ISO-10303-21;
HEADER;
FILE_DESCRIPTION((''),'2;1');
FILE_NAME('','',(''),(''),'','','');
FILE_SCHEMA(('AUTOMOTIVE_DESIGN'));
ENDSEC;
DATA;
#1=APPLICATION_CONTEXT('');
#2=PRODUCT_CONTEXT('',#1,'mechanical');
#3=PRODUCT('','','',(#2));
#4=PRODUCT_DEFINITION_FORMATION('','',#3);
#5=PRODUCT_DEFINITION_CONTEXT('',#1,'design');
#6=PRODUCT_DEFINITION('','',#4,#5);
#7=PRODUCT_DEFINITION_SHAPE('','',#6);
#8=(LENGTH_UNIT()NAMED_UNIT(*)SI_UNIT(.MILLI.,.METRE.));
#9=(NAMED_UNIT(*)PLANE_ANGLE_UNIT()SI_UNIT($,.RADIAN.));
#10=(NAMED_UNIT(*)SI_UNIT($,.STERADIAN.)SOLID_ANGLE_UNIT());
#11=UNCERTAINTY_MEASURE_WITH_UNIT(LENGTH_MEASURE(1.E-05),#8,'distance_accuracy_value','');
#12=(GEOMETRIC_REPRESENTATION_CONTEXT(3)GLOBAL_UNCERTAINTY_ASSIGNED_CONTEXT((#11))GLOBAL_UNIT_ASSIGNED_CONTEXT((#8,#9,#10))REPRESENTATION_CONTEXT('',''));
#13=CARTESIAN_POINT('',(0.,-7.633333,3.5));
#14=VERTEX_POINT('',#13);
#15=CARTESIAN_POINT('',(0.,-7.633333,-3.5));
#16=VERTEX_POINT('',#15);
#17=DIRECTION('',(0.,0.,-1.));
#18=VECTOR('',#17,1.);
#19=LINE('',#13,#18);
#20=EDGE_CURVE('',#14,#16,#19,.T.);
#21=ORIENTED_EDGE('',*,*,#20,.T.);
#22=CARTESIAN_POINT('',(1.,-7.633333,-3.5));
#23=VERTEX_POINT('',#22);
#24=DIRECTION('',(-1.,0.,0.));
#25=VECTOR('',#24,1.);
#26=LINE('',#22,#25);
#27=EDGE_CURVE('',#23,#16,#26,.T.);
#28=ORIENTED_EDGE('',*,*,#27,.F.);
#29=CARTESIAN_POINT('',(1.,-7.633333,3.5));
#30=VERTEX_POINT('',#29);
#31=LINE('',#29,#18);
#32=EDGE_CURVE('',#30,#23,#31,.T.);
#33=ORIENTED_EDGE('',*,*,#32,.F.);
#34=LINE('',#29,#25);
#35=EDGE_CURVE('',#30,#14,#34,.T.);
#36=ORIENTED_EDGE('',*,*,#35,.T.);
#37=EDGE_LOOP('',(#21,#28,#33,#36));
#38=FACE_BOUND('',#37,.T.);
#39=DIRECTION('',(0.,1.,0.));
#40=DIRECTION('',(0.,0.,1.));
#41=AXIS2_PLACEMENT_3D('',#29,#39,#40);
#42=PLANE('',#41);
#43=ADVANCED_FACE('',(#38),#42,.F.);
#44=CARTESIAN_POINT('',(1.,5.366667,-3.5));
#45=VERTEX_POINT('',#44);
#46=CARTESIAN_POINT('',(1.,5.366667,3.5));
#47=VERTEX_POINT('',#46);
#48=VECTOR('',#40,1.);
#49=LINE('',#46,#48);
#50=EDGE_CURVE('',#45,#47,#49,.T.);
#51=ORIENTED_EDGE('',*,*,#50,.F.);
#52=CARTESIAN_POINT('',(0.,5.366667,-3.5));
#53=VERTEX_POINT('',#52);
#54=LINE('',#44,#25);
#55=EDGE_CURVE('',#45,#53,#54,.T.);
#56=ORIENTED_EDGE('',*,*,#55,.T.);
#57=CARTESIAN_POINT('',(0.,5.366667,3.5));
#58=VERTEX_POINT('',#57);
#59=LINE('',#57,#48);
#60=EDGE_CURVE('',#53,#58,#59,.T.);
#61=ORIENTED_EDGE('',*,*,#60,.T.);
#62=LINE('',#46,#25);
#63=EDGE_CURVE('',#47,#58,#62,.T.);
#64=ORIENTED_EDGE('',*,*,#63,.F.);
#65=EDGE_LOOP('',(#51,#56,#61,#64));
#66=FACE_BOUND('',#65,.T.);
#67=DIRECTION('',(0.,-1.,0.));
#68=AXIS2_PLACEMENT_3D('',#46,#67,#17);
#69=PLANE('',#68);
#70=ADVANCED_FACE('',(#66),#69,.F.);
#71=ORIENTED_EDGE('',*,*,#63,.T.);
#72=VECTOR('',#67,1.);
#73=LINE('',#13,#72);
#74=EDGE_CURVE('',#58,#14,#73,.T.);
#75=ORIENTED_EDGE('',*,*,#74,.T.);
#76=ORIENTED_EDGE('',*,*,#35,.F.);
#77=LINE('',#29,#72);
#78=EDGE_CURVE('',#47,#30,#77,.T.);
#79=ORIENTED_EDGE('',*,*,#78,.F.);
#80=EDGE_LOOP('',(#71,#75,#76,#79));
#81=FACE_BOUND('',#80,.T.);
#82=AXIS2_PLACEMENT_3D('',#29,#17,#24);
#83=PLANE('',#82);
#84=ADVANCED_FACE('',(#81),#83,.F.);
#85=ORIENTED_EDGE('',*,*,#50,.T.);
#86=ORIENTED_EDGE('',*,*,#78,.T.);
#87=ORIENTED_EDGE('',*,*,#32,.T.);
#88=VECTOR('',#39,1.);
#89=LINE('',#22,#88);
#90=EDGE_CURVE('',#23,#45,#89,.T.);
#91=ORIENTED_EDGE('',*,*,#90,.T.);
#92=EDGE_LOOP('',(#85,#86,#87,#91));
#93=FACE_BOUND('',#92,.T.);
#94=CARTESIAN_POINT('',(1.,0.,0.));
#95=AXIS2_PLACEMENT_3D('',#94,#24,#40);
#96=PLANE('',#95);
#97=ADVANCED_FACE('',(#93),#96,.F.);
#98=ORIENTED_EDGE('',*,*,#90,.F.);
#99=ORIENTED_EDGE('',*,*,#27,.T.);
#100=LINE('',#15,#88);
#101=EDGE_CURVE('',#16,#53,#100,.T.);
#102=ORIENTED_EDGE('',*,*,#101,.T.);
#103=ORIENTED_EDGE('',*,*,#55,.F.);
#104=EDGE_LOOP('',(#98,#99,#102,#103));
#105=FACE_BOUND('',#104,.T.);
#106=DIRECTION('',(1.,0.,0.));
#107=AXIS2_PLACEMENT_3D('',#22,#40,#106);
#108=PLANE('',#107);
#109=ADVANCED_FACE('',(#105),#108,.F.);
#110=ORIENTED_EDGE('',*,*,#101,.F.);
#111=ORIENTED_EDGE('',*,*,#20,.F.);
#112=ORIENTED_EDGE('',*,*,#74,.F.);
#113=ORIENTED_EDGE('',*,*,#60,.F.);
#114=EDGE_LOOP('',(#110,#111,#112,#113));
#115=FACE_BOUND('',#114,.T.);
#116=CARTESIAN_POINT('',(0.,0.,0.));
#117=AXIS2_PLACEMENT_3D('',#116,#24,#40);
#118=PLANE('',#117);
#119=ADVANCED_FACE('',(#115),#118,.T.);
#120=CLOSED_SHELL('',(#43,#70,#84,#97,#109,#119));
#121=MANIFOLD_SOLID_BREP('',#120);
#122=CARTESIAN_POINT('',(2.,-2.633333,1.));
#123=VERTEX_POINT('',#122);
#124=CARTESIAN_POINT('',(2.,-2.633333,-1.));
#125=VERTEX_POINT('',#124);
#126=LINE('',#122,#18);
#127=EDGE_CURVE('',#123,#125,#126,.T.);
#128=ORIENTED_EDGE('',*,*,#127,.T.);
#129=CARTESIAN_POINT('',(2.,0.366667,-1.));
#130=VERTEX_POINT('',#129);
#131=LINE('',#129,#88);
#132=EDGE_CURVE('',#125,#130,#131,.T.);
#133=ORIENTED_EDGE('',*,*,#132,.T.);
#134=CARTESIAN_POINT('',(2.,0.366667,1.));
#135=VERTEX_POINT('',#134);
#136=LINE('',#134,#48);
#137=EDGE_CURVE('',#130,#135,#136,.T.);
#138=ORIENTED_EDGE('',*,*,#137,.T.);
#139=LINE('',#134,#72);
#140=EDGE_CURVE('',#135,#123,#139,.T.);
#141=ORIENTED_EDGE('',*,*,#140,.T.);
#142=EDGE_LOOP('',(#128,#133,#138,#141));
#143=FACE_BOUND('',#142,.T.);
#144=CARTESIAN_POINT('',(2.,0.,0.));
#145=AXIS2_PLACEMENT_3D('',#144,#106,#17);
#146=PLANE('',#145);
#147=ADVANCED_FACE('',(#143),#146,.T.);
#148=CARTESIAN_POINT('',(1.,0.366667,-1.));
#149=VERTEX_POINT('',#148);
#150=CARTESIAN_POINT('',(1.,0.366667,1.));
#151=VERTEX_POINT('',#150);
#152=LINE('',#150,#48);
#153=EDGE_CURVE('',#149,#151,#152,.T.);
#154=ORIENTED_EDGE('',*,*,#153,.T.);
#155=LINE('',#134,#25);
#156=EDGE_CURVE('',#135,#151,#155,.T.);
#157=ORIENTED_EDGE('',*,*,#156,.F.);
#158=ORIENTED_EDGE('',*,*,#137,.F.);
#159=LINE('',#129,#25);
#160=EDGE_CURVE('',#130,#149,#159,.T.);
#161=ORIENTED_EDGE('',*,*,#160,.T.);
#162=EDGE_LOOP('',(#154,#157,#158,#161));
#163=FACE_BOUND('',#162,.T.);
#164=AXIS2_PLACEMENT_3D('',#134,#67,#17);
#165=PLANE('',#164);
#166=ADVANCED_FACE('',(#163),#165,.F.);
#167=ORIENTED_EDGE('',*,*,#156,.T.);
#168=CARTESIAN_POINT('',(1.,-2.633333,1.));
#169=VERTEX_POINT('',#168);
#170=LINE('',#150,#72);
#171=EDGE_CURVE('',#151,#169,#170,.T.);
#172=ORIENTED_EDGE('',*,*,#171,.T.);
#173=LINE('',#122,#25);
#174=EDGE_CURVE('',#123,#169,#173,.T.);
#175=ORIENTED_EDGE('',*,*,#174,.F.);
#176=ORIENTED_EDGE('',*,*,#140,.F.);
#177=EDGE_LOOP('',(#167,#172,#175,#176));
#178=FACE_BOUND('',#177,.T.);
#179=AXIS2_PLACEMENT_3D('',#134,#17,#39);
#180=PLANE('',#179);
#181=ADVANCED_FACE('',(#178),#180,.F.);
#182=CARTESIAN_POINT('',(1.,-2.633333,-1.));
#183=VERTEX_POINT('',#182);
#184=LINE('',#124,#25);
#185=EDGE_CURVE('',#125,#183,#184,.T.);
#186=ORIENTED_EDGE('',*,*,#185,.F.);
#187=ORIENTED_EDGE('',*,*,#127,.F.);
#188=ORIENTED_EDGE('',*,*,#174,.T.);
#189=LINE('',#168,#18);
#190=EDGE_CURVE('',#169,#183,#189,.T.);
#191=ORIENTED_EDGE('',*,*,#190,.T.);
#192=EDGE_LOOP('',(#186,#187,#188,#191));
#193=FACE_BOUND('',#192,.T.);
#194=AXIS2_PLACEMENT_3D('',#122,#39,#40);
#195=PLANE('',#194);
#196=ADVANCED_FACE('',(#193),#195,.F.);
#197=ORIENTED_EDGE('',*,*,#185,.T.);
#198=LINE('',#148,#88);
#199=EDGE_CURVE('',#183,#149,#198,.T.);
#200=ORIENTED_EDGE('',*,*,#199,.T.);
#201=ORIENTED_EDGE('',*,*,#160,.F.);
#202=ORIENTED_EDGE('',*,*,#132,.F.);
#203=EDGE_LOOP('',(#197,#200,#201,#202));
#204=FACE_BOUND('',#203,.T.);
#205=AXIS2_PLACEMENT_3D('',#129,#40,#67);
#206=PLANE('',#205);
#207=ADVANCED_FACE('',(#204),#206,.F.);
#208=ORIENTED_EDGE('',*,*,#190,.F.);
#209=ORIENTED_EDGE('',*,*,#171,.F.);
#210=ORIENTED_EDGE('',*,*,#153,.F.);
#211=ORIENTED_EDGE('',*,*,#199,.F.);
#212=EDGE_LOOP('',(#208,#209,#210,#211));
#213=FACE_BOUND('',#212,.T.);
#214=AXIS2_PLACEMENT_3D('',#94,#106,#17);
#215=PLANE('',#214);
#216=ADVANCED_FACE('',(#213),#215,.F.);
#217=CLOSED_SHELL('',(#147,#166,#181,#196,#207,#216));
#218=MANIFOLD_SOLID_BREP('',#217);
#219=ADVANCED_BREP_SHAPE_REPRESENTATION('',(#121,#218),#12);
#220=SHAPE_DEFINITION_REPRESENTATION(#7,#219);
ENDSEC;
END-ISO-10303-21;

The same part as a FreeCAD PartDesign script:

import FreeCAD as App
import Part
import Sketcher

V = App.Vector
Q = App.Units.Quantity


def add_polygon(sketch, points):
    """Adds a closed chain of lines whose ends are joined by coincident constraints."""
    first, n = sketch.GeometryCount, len(points)
    for a, b in zip(points, points[1:] + points[:1]):
        sketch.addGeometry(Part.LineSegment(App.Vector(*a, 0), App.Vector(*b, 0)), False)
    for i in range(n):
        sketch.addConstraint(Sketcher.Constraint("Coincident", first + i, 2, first + (i + 1) % n, 1))

doc = App.newDocument("Part")
body = doc.addObject("PartDesign::Body", "Body")

# Sketch on YZ plane
sketch1 = body.newObject("Sketcher::SketchObject", "Sketch")
sketch1.AttachmentSupport = (doc.getObject("YZ_Plane"), [""])
sketch1.MapMode = "FlatFace"
add_polygon(sketch1, [(5, 4), (-8, 4), (-8, -4), (5, -4)])  # lines 0-3
sketch1.addConstraint(Sketcher.Constraint("Horizontal", 0))
sketch1.addConstraint(Sketcher.Constraint("Vertical", 1))
sketch1.addConstraint(Sketcher.Constraint("Horizontal", 2))
sketch1.addConstraint(Sketcher.Constraint("Vertical", 3))
sketch1.addConstraint(Sketcher.Constraint("DistanceX", 0, 2, 0, 1, Q("13 mm")))
sketch1.addConstraint(Sketcher.Constraint("DistanceY", 1, 2, 1, 1, Q("7 mm")))
sketch1.addConstraint(Sketcher.Constraint("DistanceY", -1, 1, 0, 2, Q("3.5 mm")))
sketch1.addConstraint(Sketcher.Constraint("DistanceX", 0, 2, -1, 1, Q("7.633333 mm")))
pad1 = body.newObject("PartDesign::Pad", "Pad")
pad1.Profile = sketch1
pad1.Length = 1
body2 = doc.addObject("PartDesign::Body", "Body001")

# Sketch on YZ plane
sketch2 = body2.newObject("Sketcher::SketchObject", "Sketch001")
sketch2.AttachmentSupport = (doc.getObject("YZ_Plane001"), [""])
sketch2.MapMode = "FlatFace"
sketch2.AttachmentOffset = App.Placement(V(0, 0, 1), App.Rotation())
add_polygon(sketch2, [(0.4, 1), (-2.6, 1), (-2.6, -1), (0.4, -1)])  # lines 0-3
sketch2.addConstraint(Sketcher.Constraint("Horizontal", 0))
sketch2.addConstraint(Sketcher.Constraint("Vertical", 1))
sketch2.addConstraint(Sketcher.Constraint("Horizontal", 2))
sketch2.addConstraint(Sketcher.Constraint("Vertical", 3))
sketch2.addConstraint(Sketcher.Constraint("DistanceX", 0, 2, 0, 1, Q("3 mm")))
sketch2.addConstraint(Sketcher.Constraint("DistanceY", 1, 2, 1, 1, Q("2 mm")))
sketch2.addConstraint(Sketcher.Constraint("DistanceY", -1, 1, 0, 2, Q("1 mm")))
sketch2.addConstraint(Sketcher.Constraint("DistanceX", 0, 2, -1, 1, Q("2.633333 mm")))
pad2 = body2.newObject("PartDesign::Pad", "Pad001")
pad2.Profile = sketch2
pad2.Length = 1

doc.recompute()
